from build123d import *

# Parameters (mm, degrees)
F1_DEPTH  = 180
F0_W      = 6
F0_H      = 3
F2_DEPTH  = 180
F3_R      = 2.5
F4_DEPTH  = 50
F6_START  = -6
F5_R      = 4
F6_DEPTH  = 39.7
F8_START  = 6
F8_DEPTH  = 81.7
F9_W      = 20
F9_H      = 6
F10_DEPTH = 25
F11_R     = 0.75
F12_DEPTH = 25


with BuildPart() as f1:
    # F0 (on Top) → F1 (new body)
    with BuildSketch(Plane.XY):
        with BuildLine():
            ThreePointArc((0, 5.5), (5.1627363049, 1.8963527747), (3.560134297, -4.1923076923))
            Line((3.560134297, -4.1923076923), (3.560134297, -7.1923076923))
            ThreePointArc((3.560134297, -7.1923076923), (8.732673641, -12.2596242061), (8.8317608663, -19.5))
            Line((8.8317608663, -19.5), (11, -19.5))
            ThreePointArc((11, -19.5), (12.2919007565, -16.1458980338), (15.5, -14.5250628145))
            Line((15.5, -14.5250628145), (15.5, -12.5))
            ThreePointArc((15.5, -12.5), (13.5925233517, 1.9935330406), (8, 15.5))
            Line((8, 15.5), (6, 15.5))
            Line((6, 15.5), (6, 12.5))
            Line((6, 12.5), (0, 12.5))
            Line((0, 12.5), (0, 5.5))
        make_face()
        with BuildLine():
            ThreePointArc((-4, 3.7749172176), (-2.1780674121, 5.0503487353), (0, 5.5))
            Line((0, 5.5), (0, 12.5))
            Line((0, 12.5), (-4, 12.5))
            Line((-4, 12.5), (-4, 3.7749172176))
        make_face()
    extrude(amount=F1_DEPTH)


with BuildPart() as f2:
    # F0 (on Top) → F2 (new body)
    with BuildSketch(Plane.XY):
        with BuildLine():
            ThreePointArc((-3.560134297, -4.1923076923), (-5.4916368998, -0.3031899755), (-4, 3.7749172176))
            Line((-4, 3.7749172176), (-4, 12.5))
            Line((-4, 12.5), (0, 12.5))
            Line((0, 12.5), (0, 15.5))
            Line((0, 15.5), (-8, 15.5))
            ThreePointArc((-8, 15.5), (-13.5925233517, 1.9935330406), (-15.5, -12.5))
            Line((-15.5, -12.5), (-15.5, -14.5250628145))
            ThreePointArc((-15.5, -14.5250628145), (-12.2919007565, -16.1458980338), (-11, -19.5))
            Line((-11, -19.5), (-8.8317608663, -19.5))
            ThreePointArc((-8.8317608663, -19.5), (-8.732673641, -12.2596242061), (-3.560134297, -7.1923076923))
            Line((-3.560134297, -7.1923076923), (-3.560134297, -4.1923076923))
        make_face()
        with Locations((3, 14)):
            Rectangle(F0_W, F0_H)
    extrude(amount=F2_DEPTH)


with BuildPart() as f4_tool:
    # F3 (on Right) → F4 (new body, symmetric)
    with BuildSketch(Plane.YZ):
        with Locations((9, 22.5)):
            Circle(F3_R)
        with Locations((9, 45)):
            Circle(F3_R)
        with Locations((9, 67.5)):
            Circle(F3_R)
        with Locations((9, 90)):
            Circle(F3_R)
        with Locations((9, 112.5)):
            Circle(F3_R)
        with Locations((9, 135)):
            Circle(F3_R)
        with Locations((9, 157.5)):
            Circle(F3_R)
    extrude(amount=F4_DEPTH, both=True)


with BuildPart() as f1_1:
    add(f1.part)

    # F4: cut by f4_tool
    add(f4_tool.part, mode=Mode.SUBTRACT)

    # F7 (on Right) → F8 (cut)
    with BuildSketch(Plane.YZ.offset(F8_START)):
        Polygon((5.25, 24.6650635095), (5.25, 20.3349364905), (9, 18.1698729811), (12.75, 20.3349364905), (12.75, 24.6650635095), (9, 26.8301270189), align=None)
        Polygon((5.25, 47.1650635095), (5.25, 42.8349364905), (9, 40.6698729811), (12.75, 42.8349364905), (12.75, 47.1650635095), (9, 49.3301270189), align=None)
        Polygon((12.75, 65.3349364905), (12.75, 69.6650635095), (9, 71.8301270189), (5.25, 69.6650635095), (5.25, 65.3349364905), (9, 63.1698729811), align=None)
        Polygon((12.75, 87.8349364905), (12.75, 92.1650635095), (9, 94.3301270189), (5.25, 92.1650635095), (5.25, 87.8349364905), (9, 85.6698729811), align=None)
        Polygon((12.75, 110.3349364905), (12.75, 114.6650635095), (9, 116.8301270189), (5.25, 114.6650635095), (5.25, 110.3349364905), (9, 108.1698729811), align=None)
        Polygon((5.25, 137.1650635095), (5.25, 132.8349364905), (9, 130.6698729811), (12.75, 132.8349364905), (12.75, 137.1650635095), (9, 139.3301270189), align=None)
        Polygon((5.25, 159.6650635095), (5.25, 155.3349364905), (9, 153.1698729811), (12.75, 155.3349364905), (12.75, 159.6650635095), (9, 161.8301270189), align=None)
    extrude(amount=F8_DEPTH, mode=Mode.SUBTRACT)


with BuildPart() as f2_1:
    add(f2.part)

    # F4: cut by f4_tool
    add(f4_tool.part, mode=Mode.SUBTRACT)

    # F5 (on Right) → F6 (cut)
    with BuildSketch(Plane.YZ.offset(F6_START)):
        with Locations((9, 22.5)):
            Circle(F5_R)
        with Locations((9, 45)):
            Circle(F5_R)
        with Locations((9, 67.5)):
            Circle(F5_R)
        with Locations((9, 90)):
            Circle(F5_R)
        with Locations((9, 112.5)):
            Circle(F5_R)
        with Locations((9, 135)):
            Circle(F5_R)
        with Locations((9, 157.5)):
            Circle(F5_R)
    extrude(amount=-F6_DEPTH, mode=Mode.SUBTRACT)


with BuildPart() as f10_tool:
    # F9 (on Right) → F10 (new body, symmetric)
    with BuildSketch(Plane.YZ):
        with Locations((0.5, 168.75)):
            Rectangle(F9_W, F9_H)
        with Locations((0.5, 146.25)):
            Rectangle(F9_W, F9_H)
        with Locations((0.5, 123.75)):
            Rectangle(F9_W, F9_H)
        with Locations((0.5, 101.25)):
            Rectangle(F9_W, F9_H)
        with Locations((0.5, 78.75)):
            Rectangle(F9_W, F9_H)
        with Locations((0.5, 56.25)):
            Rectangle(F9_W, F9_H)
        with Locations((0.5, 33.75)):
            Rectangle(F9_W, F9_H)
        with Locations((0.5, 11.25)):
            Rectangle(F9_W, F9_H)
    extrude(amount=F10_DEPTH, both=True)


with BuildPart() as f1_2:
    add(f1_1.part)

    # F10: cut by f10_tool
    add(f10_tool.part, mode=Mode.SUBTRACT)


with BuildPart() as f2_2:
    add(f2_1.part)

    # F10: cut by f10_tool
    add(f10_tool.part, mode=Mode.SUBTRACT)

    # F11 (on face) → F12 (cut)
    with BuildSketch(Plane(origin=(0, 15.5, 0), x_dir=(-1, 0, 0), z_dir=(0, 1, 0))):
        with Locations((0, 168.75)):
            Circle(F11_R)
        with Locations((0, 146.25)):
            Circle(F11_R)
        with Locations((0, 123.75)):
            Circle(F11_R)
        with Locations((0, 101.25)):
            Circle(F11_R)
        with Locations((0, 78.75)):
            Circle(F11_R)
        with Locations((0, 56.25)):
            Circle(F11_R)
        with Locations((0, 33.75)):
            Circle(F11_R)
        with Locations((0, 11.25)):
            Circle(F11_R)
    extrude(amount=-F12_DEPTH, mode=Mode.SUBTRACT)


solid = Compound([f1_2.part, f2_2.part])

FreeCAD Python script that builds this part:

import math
import FreeCAD as App
import Part
import Sketcher
Q = App.Units.Quantity


def add_polygon(sketch, points):
    """Adds a closed chain of lines whose ends are joined by coincident constraints."""
    first, n = sketch.GeometryCount, len(points)
    for a, b in zip(points, points[1:] + points[:1]):
        sketch.addGeometry(Part.LineSegment(App.Vector(*a, 0), App.Vector(*b, 0)), False)
    for i in range(n):
        sketch.addConstraint(Sketcher.Constraint("Coincident", first + i, 2, first + (i + 1) % n, 1))

doc = App.newDocument("Part")
params = doc.addObject("Spreadsheet::Sheet", "Params")
for row, (alias, value) in enumerate([
    ("sketch1_radius", "5 mm"),
    ("sketch1_radius2", "5.5 mm"),
    ("sketch1_radius3", "9.5 mm"),
    ("sketch1_width", "2 mm"),
    ("sketch1_width2", "10 mm"),
    ("pad1_length", "180 mm"),
    ("sketch2_radius", "5 mm"),
    ("sketch2_radius2", "5.5 mm"),
    ("sketch2_radius3", "9.5 mm"),
    ("sketch2_width", "10 mm"),
    ("sketch2_width2", "14 mm"),
    ("pad2_length", "180 mm"),
    ("sketch3_diameter", "5 mm"),
    ("pad3_length", "100 mm"),
    ("pocket1_length", "81.7 mm"),
    ("sketch5_diameter", "8 mm"),
    ("pocket2_length", "39.7 mm"),
    ("sketch6_width", "20 mm"),
    ("sketch6_height", "6 mm"),
    ("pad4_length", "50 mm"),
    ("sketch7_diameter", "1.5 mm"),
    ("pocket3_length", "25 mm"),
], start=1):
    params.set(f"A{row}", alias)
    params.set(f"B{row}", "=" + value)
    params.setAlias(f"B{row}", alias)

body = doc.addObject("PartDesign::Body", "Body")

# Sketch on XY plane
sketch1 = body.newObject("Sketcher::SketchObject", "Sketch")
sketch1.AttachmentSupport = (doc.getObject("XY_Plane"), [""])
sketch1.MapMode = "FlatFace"
sketch1.addGeometry([
    Part.ArcOfCircle(Part.Circle(App.Vector(0, 0, 0), App.Vector(0, 0, 1), 5.5), math.radians(-49.661873), math.radians(90)),  # 0
    Part.LineSegment(App.Vector(3.560134, -4.192308, 0), App.Vector(3.560134, -7.192308, 0)),  # 1
    Part.ArcOfCircle(Part.Circle(App.Vector(0, -16, 0), App.Vector(0, 0, 1), 9.5), math.radians(-21.618272), math.radians(67.991077)),  # 2
    Part.LineSegment(App.Vector(8.831761, -19.5, 0), App.Vector(11, -19.5, 0)),  # 3
    Part.ArcOfCircle(Part.Circle(App.Vector(16, -19.5, 0), App.Vector(0, 0, 1), 5), math.radians(95.73917), math.radians(180)),  # 4
    Part.LineSegment(App.Vector(15.5, -14.525063, 0), App.Vector(15.5, -12.5, 0)),  # 5
    Part.ArcOfCircle(Part.Circle(App.Vector(-40.516667, -12.5, 0), App.Vector(0, 0, 1), 56.016667), math.radians(0), math.radians(29.990158)),  # 6
    Part.LineSegment(App.Vector(8, 15.5, 0), App.Vector(6, 15.5, 0)),  # 7
    Part.LineSegment(App.Vector(6, 15.5, 0), App.Vector(6, 12.5, 0)),  # 8
    Part.LineSegment(App.Vector(6, 12.5, 0), App.Vector(-4, 12.5, 0)),  # 9
    Part.LineSegment(App.Vector(-4, 12.5, 0), App.Vector(-4, 3.774917, 0)),  # 10
    Part.ArcOfCircle(Part.Circle(App.Vector(0, 0, 0), App.Vector(0, 0, 1), 5.5), math.radians(90), math.radians(136.658242)),  # 11
], False)
sketch1.addConstraint([
    Sketcher.Constraint("Coincident", 0, 1, 1, 1),
    Sketcher.Constraint("Coincident", 1, 2, 2, 2),
    Sketcher.Constraint("Coincident", 2, 1, 3, 1),
    Sketcher.Constraint("Coincident", 3, 2, 4, 2),
    Sketcher.Constraint("Coincident", 4, 1, 5, 1),
    Sketcher.Constraint("Tangent", 5, 2, 6, 1),
    Sketcher.Constraint("Coincident", 6, 2, 7, 1),
    Sketcher.Constraint("Coincident", 7, 2, 8, 1),
    Sketcher.Constraint("Coincident", 8, 2, 9, 1),
    Sketcher.Constraint("Coincident", 9, 2, 10, 1),
    Sketcher.Constraint("Coincident", 10, 2, 11, 2),
    Sketcher.Constraint("Tangent", 11, 1, 0, 2),
    Sketcher.Constraint("Vertical", 1),
    Sketcher.Constraint("Horizontal", 3),
    Sketcher.Constraint("Vertical", 5),
    Sketcher.Constraint("Horizontal", 7),
    Sketcher.Constraint("Vertical", 8),
    Sketcher.Constraint("Horizontal", 9),
    Sketcher.Constraint("Vertical", 10),
    Sketcher.Constraint("Coincident", 0, 3, -1, 1),
    Sketcher.Constraint("Equal", 0, 11),
    Sketcher.Constraint("PointOnObject", 2, 3, -2),
    Sketcher.Constraint("PointOnObject", 11, 1, -2),
    Sketcher.Constraint("Horizontal", 4, 3, 2, 1),
    Sketcher.Constraint("Equal", 1, 8),
    Sketcher.Constraint("Radius", 4, 5.0),
    Sketcher.Constraint("Radius", 0, 5.5),
    Sketcher.Constraint("Radius", 2, 9.5),
    Sketcher.Constraint("DistanceX", 7, 2, 7, 1, 2.0),
    Sketcher.Constraint("DistanceX", 9, 2, 9, 1, 10.0),
    Sketcher.Constraint("DistanceY", 1, 2, 1, 1, 3.0),
    Sketcher.Constraint("DistanceY", 2, 3, -1, 1, 16.0),
    Sketcher.Constraint("DistanceX", -1, 1, 4, 3, 16.0),
    Sketcher.Constraint("DistanceX", -1, 1, 6, 2, 8.0),
    Sketcher.Constraint("DistanceY", 4, 3, 6, 3, 7.0),
    Sketcher.Constraint("DistanceY", 5, 2, 6, 2, 28.0),
    Sketcher.Constraint("DistanceY", 11, 1, 9, 2, 7.0),
    Sketcher.Constraint("DistanceX", -1, 1, 4, 1, 15.5),
])
sketch1.setExpression("Constraints[25]", "Params.sketch1_radius")
sketch1.setExpression("Constraints[26]", "Params.sketch1_radius2")
sketch1.setExpression("Constraints[27]", "Params.sketch1_radius3")
sketch1.setExpression("Constraints[28]", "Params.sketch1_width")
sketch1.setExpression("Constraints[29]", "Params.sketch1_width2")
pad1 = body.newObject("PartDesign::Pad", "Pad")
pad1.Profile = sketch1
pad1.setExpression("Length", "Params.pad1_length")
body2 = doc.addObject("PartDesign::Body", "Body001")

# Sketch on XY plane
sketch2 = body2.newObject("Sketcher::SketchObject", "Sketch001")
sketch2.AttachmentSupport = (doc.getObject("XY_Plane001"), [""])
sketch2.MapMode = "FlatFace"
sketch2.addGeometry([
    Part.ArcOfCircle(Part.Circle(App.Vector(0, 0, 0), App.Vector(0, 0, 1), 5.5), math.radians(136.658242), math.radians(229.661873)),  # 0
    Part.LineSegment(App.Vector(-4, 3.774917, 0), App.Vector(-4, 12.5, 0)),  # 1
    Part.LineSegment(App.Vector(-4, 12.5, 0), App.Vector(6, 12.5, 0)),  # 2
    Part.LineSegment(App.Vector(6, 12.5, 0), App.Vector(6, 15.5, 0)),  # 3
    Part.LineSegment(App.Vector(6, 15.5, 0), App.Vector(-8, 15.5, 0)),  # 4
    Part.ArcOfCircle(Part.Circle(App.Vector(40.516667, -12.5, 0), App.Vector(0, 0, 1), 56.016667), math.radians(150.009842), math.radians(180)),  # 5
    Part.LineSegment(App.Vector(-15.5, -12.5, 0), App.Vector(-15.5, -14.525063, 0)),  # 6
    Part.ArcOfCircle(Part.Circle(App.Vector(-16, -19.5, 0), App.Vector(0, 0, 1), 5), math.radians(0), math.radians(84.26083)),  # 7
    Part.LineSegment(App.Vector(-11, -19.5, 0), App.Vector(-8.831761, -19.5, 0)),  # 8
    Part.ArcOfCircle(Part.Circle(App.Vector(0, -16, 0), App.Vector(0, 0, 1), 9.5), math.radians(112.008923), math.radians(201.618272)),  # 9
    Part.LineSegment(App.Vector(-3.560134, -7.192308, 0), App.Vector(-3.560134, -4.192308, 0)),  # 10
], False)
sketch2.addConstraint([
    Sketcher.Constraint("Coincident", 0, 1, 1, 1),
    Sketcher.Constraint("Coincident", 1, 2, 2, 1),
    Sketcher.Constraint("Coincident", 2, 2, 3, 1),
    Sketcher.Constraint("Coincident", 3, 2, 4, 1),
    Sketcher.Constraint("Coincident", 4, 2, 5, 1),
    Sketcher.Constraint("Tangent", 5, 2, 6, 1),
    Sketcher.Constraint("Coincident", 6, 2, 7, 2),
    Sketcher.Constraint("Coincident", 7, 1, 8, 1),
    Sketcher.Constraint("Coincident", 8, 2, 9, 2),
    Sketcher.Constraint("Coincident", 9, 1, 10, 1),
    Sketcher.Constraint("Coincident", 10, 2, 0, 2),
    Sketcher.Constraint("Vertical", 1),
    Sketcher.Constraint("Horizontal", 2),
    Sketcher.Constraint("Vertical", 3),
    Sketcher.Constraint("Horizontal", 4),
    Sketcher.Constraint("Vertical", 6),
    Sketcher.Constraint("Horizontal", 8),
    Sketcher.Constraint("Vertical", 10),
    Sketcher.Constraint("Coincident", 0, 3, -1, 1),
    Sketcher.Constraint("PointOnObject", 9, 3, -2),
    Sketcher.Constraint("Equal", 3, 10),
    Sketcher.Constraint("Radius", 7, 5.0),
    Sketcher.Constraint("Radius", 0, 5.5),
    Sketcher.Constraint("Radius", 9, 9.5),
    Sketcher.Constraint("DistanceX", 2, 1, 2, 2, 10.0),
    Sketcher.Constraint("DistanceX", 4, 2, 4, 1, 14.0),
    Sketcher.Constraint("DistanceY", 3, 1, 3, 2, 3.0),
    Sketcher.Constraint("DistanceX", 7, 3, -1, 1, 16.0),
    Sketcher.Constraint("DistanceY", 9, 3, -1, 1, 16.0),
    Sketcher.Constraint("DistanceX", 0, 1, -1, 1, 4.0),
    Sketcher.Constraint("DistanceY", 7, 3, 5, 3, 7.0),
    Sketcher.Constraint("DistanceY", 7, 3, 1, 2, 32.0),
    Sketcher.Constraint("DistanceY", 7, 1, 5, 2, 7.0),
    Sketcher.Constraint("DistanceY", 5, 3, -1, 1, 12.5),
    Sketcher.Constraint("DistanceX", 5, 2, -1, 1, 15.5),
])
sketch2.setExpression("Constraints[21]", "Params.sketch2_radius")
sketch2.setExpression("Constraints[22]", "Params.sketch2_radius2")
sketch2.setExpression("Constraints[23]", "Params.sketch2_radius3")
sketch2.setExpression("Constraints[24]", "Params.sketch2_width")
sketch2.setExpression("Constraints[25]", "Params.sketch2_width2")
pad2 = body2.newObject("PartDesign::Pad", "Pad001")
pad2.Profile = sketch2
pad2.setExpression("Length", "Params.pad2_length")
body3 = doc.addObject("PartDesign::Body", "Body002")
body3.AllowCompound = True

# Sketch on YZ plane
sketch3 = body3.newObject("Sketcher::SketchObject", "Sketch002")
sketch3.AttachmentSupport = (doc.getObject("YZ_Plane002"), [""])
sketch3.MapMode = "FlatFace"
sketch3.addGeometry([
    Part.Circle(App.Vector(9, 22.5, 0), App.Vector(0, 0, 1), 2.5),  # 0
    Part.Circle(App.Vector(9, 45, 0), App.Vector(0, 0, 1), 2.5),  # 1
    Part.Circle(App.Vector(9, 67.5, 0), App.Vector(0, 0, 1), 2.5),  # 2
    Part.Circle(App.Vector(9, 90, 0), App.Vector(0, 0, 1), 2.5),  # 3
    Part.Circle(App.Vector(9, 112.5, 0), App.Vector(0, 0, 1), 2.5),  # 4
    Part.Circle(App.Vector(9, 135, 0), App.Vector(0, 0, 1), 2.5),  # 5
    Part.Circle(App.Vector(9, 157.5, 0), App.Vector(0, 0, 1), 2.5),  # 6
], False)
sketch3.addConstraint([
    Sketcher.Constraint("Equal", 0, 1),
    Sketcher.Constraint("Equal", 1, 2),
    Sketcher.Constraint("Equal", 2, 3),
    Sketcher.Constraint("Equal", 3, 4),
    Sketcher.Constraint("Equal", 4, 5),
    Sketcher.Constraint("Equal", 5, 6),
    Sketcher.Constraint("Vertical", 0, 3, 1, 3),
    Sketcher.Constraint("Vertical", 1, 3, 2, 3),
    Sketcher.Constraint("Vertical", 2, 3, 3, 3),
    Sketcher.Constraint("Vertical", 3, 3, 4, 3),
    Sketcher.Constraint("Vertical", 4, 3, 5, 3),
    Sketcher.Constraint("Vertical", 5, 3, 6, 3),
    Sketcher.Constraint("Diameter", 0, 5.0),
    Sketcher.Constraint("DistanceX", -1, 1, 0, 3, 9.0),
    Sketcher.Constraint("DistanceY", -1, 1, 1, 3, 45.0),
    Sketcher.Constraint("DistanceY", -1, 1, 3, 3, 90.0),
    Sketcher.Constraint("DistanceY", -1, 1, 5, 3, 135.0),
    Sketcher.Constraint("DistanceY", 0, 3, 2, 3, 45.0),
    Sketcher.Constraint("DistanceY", 2, 3, 4, 3, 45.0),
    Sketcher.Constraint("DistanceY", 4, 3, 6, 3, 45.0),
    Sketcher.Constraint("DistanceY", -1, 1, 0, 3, 22.5),
])
sketch3.setExpression("Constraints[12]", "Params.sketch3_diameter")
pad3 = body3.newObject("PartDesign::Pad", "Pad002")
pad3.Profile = sketch3
pad3.setExpression("Length", "Params.pad3_length")
pad3.Midplane = True
doc.recompute()

body4 = doc.addObject("PartDesign::Body", "Body003")
body4.BaseFeature = body3
boolean = body.newObject("PartDesign::Boolean", "Boolean")
boolean.Type = "Cut"
boolean.addObjects([body4])
doc.recompute()

# Sketch on YZ plane
sketch4 = body.newObject("Sketcher::SketchObject", "Sketch003")
sketch4.AttachmentSupport = (doc.getObject("YZ_Plane"), [""])
sketch4.MapMode = "FlatFace"
sketch4.AttachmentOffset = App.Placement(App.Vector(0, 0, 6), App.Rotation())
add_polygon(sketch4, [(5.25, 24.665064), (5.25, 20.334936), (9, 18.169873), (12.75, 20.334936), (12.75, 24.665064), (9, 26.830127)])  # lines 0-5
add_polygon(sketch4, [(5.25, 47.165064), (5.25, 42.834936), (9, 40.669873), (12.75, 42.834936), (12.75, 47.165064), (9, 49.330127)])  # lines 6-11
add_polygon(sketch4, [(12.75, 65.334936), (12.75, 69.665064), (9, 71.830127), (5.25, 69.665064), (5.25, 65.334936), (9, 63.169873)])  # lines 12-17
add_polygon(sketch4, [(12.75, 87.834936), (12.75, 92.165064), (9, 94.330127), (5.25, 92.165064), (5.25, 87.834936), (9, 85.669873)])  # lines 18-23
add_polygon(sketch4, [(12.75, 110.334936), (12.75, 114.665064), (9, 116.830127), (5.25, 114.665064), (5.25, 110.334936), (9, 108.169873)])  # lines 24-29
add_polygon(sketch4, [(5.25, 137.165064), (5.25, 132.834936), (9, 130.669873), (12.75, 132.834936), (12.75, 137.165064), (9, 139.330127)])  # lines 30-35
add_polygon(sketch4, [(5.25, 159.665064), (5.25, 155.334936), (9, 153.169873), (12.75, 155.334936), (12.75, 159.665064), (9, 161.830127)])  # lines 36-41
sketch4.addConstraint([
    Sketcher.Constraint("Vertical", 0),
    Sketcher.Constraint("Vertical", 3),
    Sketcher.Constraint("Vertical", 6),
    Sketcher.Constraint("Vertical", 9),
    Sketcher.Constraint("Vertical", 12),
    Sketcher.Constraint("Vertical", 15),
    Sketcher.Constraint("Vertical", 18),
    Sketcher.Constraint("Vertical", 21),
    Sketcher.Constraint("Vertical", 24),
    Sketcher.Constraint("Vertical", 27),
    Sketcher.Constraint("Vertical", 30),
    Sketcher.Constraint("Vertical", 33),
    Sketcher.Constraint("Vertical", 36),
    Sketcher.Constraint("Vertical", 39),
    Sketcher.Constraint("Parallel", 1, 4),
    Sketcher.Constraint("Parallel", 2, 5),
    Sketcher.Constraint("Parallel", 4, 7),
    Sketcher.Constraint("Parallel", 5, 8),
    Sketcher.Constraint("Parallel", 7, 10),
    Sketcher.Constraint("Parallel", 8, 11),
    Sketcher.Constraint("Parallel", 10, 13),
    Sketcher.Constraint("Parallel", 11, 14),
    Sketcher.Constraint("Parallel", 13, 16),
    Sketcher.Constraint("Parallel", 14, 17),
    Sketcher.Constraint("Parallel", 16, 19),
    Sketcher.Constraint("Parallel", 17, 20),
    Sketcher.Constraint("Parallel", 19, 22),
    Sketcher.Constraint("Parallel", 20, 23),
    Sketcher.Constraint("Parallel", 22, 25),
    Sketcher.Constraint("Parallel", 23, 26),
    Sketcher.Constraint("Parallel", 25, 28),
    Sketcher.Constraint("Parallel", 26, 29),
    Sketcher.Constraint("Parallel", 28, 31),
    Sketcher.Constraint("Parallel", 29, 32),
    Sketcher.Constraint("Parallel", 31, 34),
    Sketcher.Constraint("Parallel", 32, 35),
    Sketcher.Constraint("Parallel", 34, 37),
    Sketcher.Constraint("Parallel", 35, 38),
    Sketcher.Constraint("Parallel", 37, 40),
    Sketcher.Constraint("Parallel", 38, 41),
    Sketcher.Constraint("Horizontal", 0, 2, 2, 2),
    Sketcher.Constraint("Horizontal", 3, 2, 5, 2),
    Sketcher.Constraint("Horizontal", 6, 2, 8, 2),
    Sketcher.Constraint("Horizontal", 9, 2, 11, 2),
    Sketcher.Constraint("Horizontal", 12, 2, 14, 2),
    Sketcher.Constraint("Horizontal", 15, 2, 17, 2),
    Sketcher.Constraint("Horizontal", 18, 2, 20, 2),
    Sketcher.Constraint("Horizontal", 21, 2, 23, 2),
    Sketcher.Constraint("Horizontal", 24, 2, 26, 2),
    Sketcher.Constraint("Horizontal", 27, 2, 29, 2),
    Sketcher.Constraint("Horizontal", 30, 2, 32, 2),
    Sketcher.Constraint("Horizontal", 33, 2, 35, 2),
    Sketcher.Constraint("Horizontal", 36, 2, 38, 2),
    Sketcher.Constraint("Horizontal", 39, 2, 41, 2),
    Sketcher.Constraint("Vertical", 1, 2, 4, 2),
    Sketcher.Constraint("Vertical", 5, 2, 6, 2),
    Sketcher.Constraint("Vertical", 4, 2, 7, 2),
    Sketcher.Constraint("Vertical", 9, 2, 12, 2),
    Sketcher.Constraint("Vertical", 10, 2, 13, 2),
    Sketcher.Constraint("Vertical", 17, 2, 18, 2),
    Sketcher.Constraint("Vertical", 16, 2, 19, 2),
    Sketcher.Constraint("Vertical", 23, 2, 24, 2),
    Sketcher.Constraint("Vertical", 22, 2, 25, 2),
    Sketcher.Constraint("Vertical", 27, 2, 30, 2),
    Sketcher.Constraint("Vertical", 28, 2, 31, 2),
    Sketcher.Constraint("Vertical", 35, 2, 36, 2),
    Sketcher.Constraint("Vertical", 34, 2, 37, 2),
    Sketcher.Constraint("Equal", 3, 6),
    Sketcher.Constraint("Equal", 9, 12),
    Sketcher.Constraint("Equal", 15, 18),
    Sketcher.Constraint("Equal", 21, 24),
    Sketcher.Constraint("Equal", 27, 30),
    Sketcher.Constraint("Equal", 33, 36),
    Sketcher.Constraint("Angle", 1, Q("-30 deg")),
    Sketcher.Constraint("DistanceX", -1, 1, 1, 2, 9.0),
    Sketcher.Constraint("DistanceX", 0, 2, 2, 2, 7.5),
    Sketcher.Constraint("DistanceY", 0, 2, 6, 2, 22.5),
    Sketcher.Constraint("DistanceY", 9, 2, 12, 2, 22.5),
    Sketcher.Constraint("DistanceY", 12, 2, 18, 2, 22.5),
    Sketcher.Constraint("DistanceY", 18, 2, 24, 2, 22.5),
    Sketcher.Constraint("DistanceY", 27, 2, 30, 2, 22.5),
    Sketcher.Constraint("DistanceY", 30, 2, 36, 2, 22.5),
    Sketcher.Constraint("DistanceY", 0, 2, 0, 1, 4.330127),
    Sketcher.Constraint("DistanceY", -1, 1, 0, 2, 20.334936),
])
pocket1 = body.newObject("PartDesign::Pocket", "Pocket")
pocket1.Profile = sketch4
pocket1.setExpression("Length", "Params.pocket1_length")
pocket1.Reversed = True
doc.recompute()

boolean2 = body2.newObject("PartDesign::Boolean", "Boolean001")
boolean2.Type = "Cut"
boolean2.addObjects([body3])

# Sketch on YZ plane
sketch5 = body2.newObject("Sketcher::SketchObject", "Sketch004")
sketch5.AttachmentSupport = (doc.getObject("YZ_Plane001"), [""])
sketch5.MapMode = "FlatFace"
sketch5.AttachmentOffset = App.Placement(App.Vector(0, 0, -6), App.Rotation())
sketch5.addGeometry([
    Part.Circle(App.Vector(9, 22.5, 0), App.Vector(0, 0, 1), 4),  # 0
    Part.Circle(App.Vector(9, 45, 0), App.Vector(0, 0, 1), 4),  # 1
    Part.Circle(App.Vector(9, 67.5, 0), App.Vector(0, 0, 1), 4),  # 2
    Part.Circle(App.Vector(9, 90, 0), App.Vector(0, 0, 1), 4),  # 3
    Part.Circle(App.Vector(9, 112.5, 0), App.Vector(0, 0, 1), 4),  # 4
    Part.Circle(App.Vector(9, 135, 0), App.Vector(0, 0, 1), 4),  # 5
    Part.Circle(App.Vector(9, 157.5, 0), App.Vector(0, 0, 1), 4),  # 6
], False)
sketch5.addConstraint([
    Sketcher.Constraint("Equal", 0, 1),
    Sketcher.Constraint("Equal", 1, 2),
    Sketcher.Constraint("Equal", 2, 3),
    Sketcher.Constraint("Equal", 3, 4),
    Sketcher.Constraint("Equal", 4, 5),
    Sketcher.Constraint("Equal", 5, 6),
    Sketcher.Constraint("Vertical", 0, 3, 1, 3),
    Sketcher.Constraint("Vertical", 1, 3, 2, 3),
    Sketcher.Constraint("Vertical", 2, 3, 3, 3),
    Sketcher.Constraint("Vertical", 3, 3, 4, 3),
    Sketcher.Constraint("Vertical", 4, 3, 5, 3),
    Sketcher.Constraint("Vertical", 5, 3, 6, 3),
    Sketcher.Constraint("Diameter", 0, 8.0),
    Sketcher.Constraint("DistanceX", -1, 1, 0, 3, 9.0),
    Sketcher.Constraint("DistanceY", -1, 1, 1, 3, 45.0),
    Sketcher.Constraint("DistanceY", -1, 1, 3, 3, 90.0),
    Sketcher.Constraint("DistanceY", -1, 1, 5, 3, 135.0),
    Sketcher.Constraint("DistanceY", 0, 3, 2, 3, 45.0),
    Sketcher.Constraint("DistanceY", 2, 3, 4, 3, 45.0),
    Sketcher.Constraint("DistanceY", 4, 3, 6, 3, 45.0),
    Sketcher.Constraint("DistanceY", -1, 1, 0, 3, 22.5),
])
sketch5.setExpression("Constraints[12]", "Params.sketch5_diameter")
pocket2 = body2.newObject("PartDesign::Pocket", "Pocket001")
pocket2.Profile = sketch5
pocket2.setExpression("Length", "Params.pocket2_length")
body5 = doc.addObject("PartDesign::Body", "Body004")
body5.AllowCompound = True

# Sketch on YZ plane
sketch6 = body5.newObject("Sketcher::SketchObject", "Sketch005")
sketch6.AttachmentSupport = (doc.getObject("YZ_Plane004"), [""])
sketch6.MapMode = "FlatFace"
add_polygon(sketch6, [(-9.5, 171.75), (-9.5, 165.75), (10.5, 165.75), (10.5, 171.75)])  # lines 0-3
add_polygon(sketch6, [(-9.5, 149.25), (-9.5, 143.25), (10.5, 143.25), (10.5, 149.25)])  # lines 4-7
add_polygon(sketch6, [(-9.5, 126.75), (-9.5, 120.75), (10.5, 120.75), (10.5, 126.75)])  # lines 8-11
add_polygon(sketch6, [(-9.5, 104.25), (-9.5, 98.25), (10.5, 98.25), (10.5, 104.25)])  # lines 12-15
add_polygon(sketch6, [(-9.5, 81.75), (-9.5, 75.75), (10.5, 75.75), (10.5, 81.75)])  # lines 16-19
add_polygon(sketch6, [(-9.5, 59.25), (-9.5, 53.25), (10.5, 53.25), (10.5, 59.25)])  # lines 20-23
add_polygon(sketch6, [(-9.5, 36.75), (-9.5, 30.75), (10.5, 30.75), (10.5, 36.75)])  # lines 24-27
add_polygon(sketch6, [(-9.5, 14.25), (-9.5, 8.25), (10.5, 8.25), (10.5, 14.25)])  # lines 28-31
sketch6.addConstraint([
    Sketcher.Constraint("Vertical", 0),
    Sketcher.Constraint("Horizontal", 1),
    Sketcher.Constraint("Vertical", 2),
    Sketcher.Constraint("Horizontal", 3),
    Sketcher.Constraint("Vertical", 4),
    Sketcher.Constraint("Horizontal", 5),
    Sketcher.Constraint("Vertical", 6),
    Sketcher.Constraint("Horizontal", 7),
    Sketcher.Constraint("Vertical", 8),
    Sketcher.Constraint("Horizontal", 9),
    Sketcher.Constraint("Vertical", 10),
    Sketcher.Constraint("Horizontal", 11),
    Sketcher.Constraint("Vertical", 12),
    Sketcher.Constraint("Horizontal", 13),
    Sketcher.Constraint("Vertical", 14),
    Sketcher.Constraint("Horizontal", 15),
    Sketcher.Constraint("Vertical", 16),
    Sketcher.Constraint("Horizontal", 17),
    Sketcher.Constraint("Vertical", 18),
    Sketcher.Constraint("Horizontal", 19),
    Sketcher.Constraint("Vertical", 20),
    Sketcher.Constraint("Horizontal", 21),
    Sketcher.Constraint("Vertical", 22),
    Sketcher.Constraint("Horizontal", 23),
    Sketcher.Constraint("Vertical", 24),
    Sketcher.Constraint("Horizontal", 25),
    Sketcher.Constraint("Vertical", 26),
    Sketcher.Constraint("Horizontal", 27),
    Sketcher.Constraint("Vertical", 28),
    Sketcher.Constraint("Horizontal", 29),
    Sketcher.Constraint("Vertical", 30),
    Sketcher.Constraint("Horizontal", 31),
    Sketcher.Constraint("Vertical", 3, 2, 4, 2),
    Sketcher.Constraint("Vertical", 2, 2, 5, 2),
    Sketcher.Constraint("Vertical", 7, 2, 8, 2),
    Sketcher.Constraint("Vertical", 6, 2, 9, 2),
    Sketcher.Constraint("Vertical", 11, 2, 12, 2),
    Sketcher.Constraint("Vertical", 10, 2, 13, 2),
    Sketcher.Constraint("Vertical", 15, 2, 16, 2),
    Sketcher.Constraint("Vertical", 14, 2, 17, 2),
    Sketcher.Constraint("Vertical", 19, 2, 20, 2),
    Sketcher.Constraint("Vertical", 18, 2, 21, 2),
    Sketcher.Constraint("Vertical", 23, 2, 24, 2),
    Sketcher.Constraint("Vertical", 22, 2, 25, 2),
    Sketcher.Constraint("Vertical", 27, 2, 28, 2),
    Sketcher.Constraint("Vertical", 26, 2, 29, 2),
    Sketcher.Constraint("Equal", 2, 4),
    Sketcher.Constraint("Equal", 6, 8),
    Sketcher.Constraint("Equal", 10, 12),
    Sketcher.Constraint("Equal", 14, 16),
    Sketcher.Constraint("Equal", 18, 20),
    Sketcher.Constraint("Equal", 22, 24),
    Sketcher.Constraint("Equal", 26, 28),
    Sketcher.Constraint("DistanceX", 1, 1, 1, 2, 20.0),
    Sketcher.Constraint("DistanceY", 0, 2, 0, 1, 6.0),
    Sketcher.Constraint("DistanceY", 8, 2, 0, 2, 45.0),
    Sketcher.Constraint("DistanceY", 12, 2, 4, 2, 45.0),
    Sketcher.Constraint("DistanceY", 16, 2, 8, 2, 45.0),
    Sketcher.Constraint("DistanceY", 20, 2, 12, 2, 45.0),
    Sketcher.Constraint("DistanceY", 24, 2, 16, 2, 45.0),
    Sketcher.Constraint("DistanceY", 28, 2, 20, 2, 45.0),
    Sketcher.Constraint("DistanceX", 0, 2, -1, 1, 9.5),
    Sketcher.Constraint("DistanceY", 4, 2, 0, 2, 22.5),
    Sketcher.Constraint("DistanceY", -1, 1, 0, 2, 165.75),
])
sketch6.setExpression("Constraints[85]", "Params.sketch6_width")
sketch6.setExpression("Constraints[86]", "Params.sketch6_height")
pad4 = body5.newObject("PartDesign::Pad", "Pad003")
pad4.Profile = sketch6
pad4.setExpression("Length", "Params.pad4_length")
pad4.Midplane = True
doc.recompute()

body6 = doc.addObject("PartDesign::Body", "Body005")
body6.BaseFeature = body5
boolean3 = body.newObject("PartDesign::Boolean", "Boolean002")
boolean3.Type = "Cut"
boolean3.addObjects([body6])
doc.recompute()

boolean4 = body2.newObject("PartDesign::Boolean", "Boolean003")
boolean4.Type = "Cut"
boolean4.addObjects([body5])

# Sketch on XZ plane
sketch7 = body2.newObject("Sketcher::SketchObject", "Sketch006")
sketch7.AttachmentSupport = (doc.getObject("XZ_Plane001"), [""])
sketch7.MapMode = "FlatFace"
sketch7.AttachmentOffset = App.Placement(App.Vector(0, 0, -15.5), App.Rotation())
sketch7.addGeometry([
    Part.Circle(App.Vector(0, 168.75, 0), App.Vector(0, 0, 1), 0.75),  # 0
    Part.Circle(App.Vector(0, 146.25, 0), App.Vector(0, 0, 1), 0.75),  # 1
    Part.Circle(App.Vector(0, 123.75, 0), App.Vector(0, 0, 1), 0.75),  # 2
    Part.Circle(App.Vector(0, 101.25, 0), App.Vector(0, 0, 1), 0.75),  # 3
    Part.Circle(App.Vector(0, 78.75, 0), App.Vector(0, 0, 1), 0.75),  # 4
    Part.Circle(App.Vector(0, 56.25, 0), App.Vector(0, 0, 1), 0.75),  # 5
    Part.Circle(App.Vector(0, 33.75, 0), App.Vector(0, 0, 1), 0.75),  # 6
    Part.Circle(App.Vector(0, 11.25, 0), App.Vector(0, 0, 1), 0.75),  # 7
], False)
sketch7.addConstraint([
    Sketcher.Constraint("Equal", 0, 1),
    Sketcher.Constraint("Equal", 1, 2),
    Sketcher.Constraint("Equal", 2, 3),
    Sketcher.Constraint("Equal", 3, 4),
    Sketcher.Constraint("Equal", 4, 5),
    Sketcher.Constraint("Equal", 5, 6),
    Sketcher.Constraint("Equal", 6, 7),
    Sketcher.Constraint("PointOnObject", 0, 3, -2),
    Sketcher.Constraint("PointOnObject", 1, 3, -2),
    Sketcher.Constraint("PointOnObject", 2, 3, -2),
    Sketcher.Constraint("PointOnObject", 3, 3, -2),
    Sketcher.Constraint("PointOnObject", 4, 3, -2),
    Sketcher.Constraint("PointOnObject", 5, 3, -2),
    Sketcher.Constraint("PointOnObject", 6, 3, -2),
    Sketcher.Constraint("PointOnObject", 7, 3, -2),
    Sketcher.Constraint("Diameter", 0, 1.5),
    Sketcher.Constraint("DistanceY", 2, 3, 0, 3, 45.0),
    Sketcher.Constraint("DistanceY", 3, 3, 1, 3, 45.0),
    Sketcher.Constraint("DistanceY", 4, 3, 2, 3, 45.0),
    Sketcher.Constraint("DistanceY", 5, 3, 3, 3, 45.0),
    Sketcher.Constraint("DistanceY", 6, 3, 4, 3, 45.0),
    Sketcher.Constraint("DistanceY", 7, 3, 5, 3, 45.0),
    Sketcher.Constraint("DistanceY", 1, 3, 0, 3, 22.5),
    Sketcher.Constraint("DistanceY", -1, 1, 0, 3, 168.75),
])
sketch7.setExpression("Constraints[15]", "Params.sketch7_diameter")
pocket3 = body2.newObject("PartDesign::Pocket", "Pocket002")
pocket3.Profile = sketch7
pocket3.setExpression("Length", "Params.pocket3_length")
pocket3.Reversed = True

doc.recompute()
